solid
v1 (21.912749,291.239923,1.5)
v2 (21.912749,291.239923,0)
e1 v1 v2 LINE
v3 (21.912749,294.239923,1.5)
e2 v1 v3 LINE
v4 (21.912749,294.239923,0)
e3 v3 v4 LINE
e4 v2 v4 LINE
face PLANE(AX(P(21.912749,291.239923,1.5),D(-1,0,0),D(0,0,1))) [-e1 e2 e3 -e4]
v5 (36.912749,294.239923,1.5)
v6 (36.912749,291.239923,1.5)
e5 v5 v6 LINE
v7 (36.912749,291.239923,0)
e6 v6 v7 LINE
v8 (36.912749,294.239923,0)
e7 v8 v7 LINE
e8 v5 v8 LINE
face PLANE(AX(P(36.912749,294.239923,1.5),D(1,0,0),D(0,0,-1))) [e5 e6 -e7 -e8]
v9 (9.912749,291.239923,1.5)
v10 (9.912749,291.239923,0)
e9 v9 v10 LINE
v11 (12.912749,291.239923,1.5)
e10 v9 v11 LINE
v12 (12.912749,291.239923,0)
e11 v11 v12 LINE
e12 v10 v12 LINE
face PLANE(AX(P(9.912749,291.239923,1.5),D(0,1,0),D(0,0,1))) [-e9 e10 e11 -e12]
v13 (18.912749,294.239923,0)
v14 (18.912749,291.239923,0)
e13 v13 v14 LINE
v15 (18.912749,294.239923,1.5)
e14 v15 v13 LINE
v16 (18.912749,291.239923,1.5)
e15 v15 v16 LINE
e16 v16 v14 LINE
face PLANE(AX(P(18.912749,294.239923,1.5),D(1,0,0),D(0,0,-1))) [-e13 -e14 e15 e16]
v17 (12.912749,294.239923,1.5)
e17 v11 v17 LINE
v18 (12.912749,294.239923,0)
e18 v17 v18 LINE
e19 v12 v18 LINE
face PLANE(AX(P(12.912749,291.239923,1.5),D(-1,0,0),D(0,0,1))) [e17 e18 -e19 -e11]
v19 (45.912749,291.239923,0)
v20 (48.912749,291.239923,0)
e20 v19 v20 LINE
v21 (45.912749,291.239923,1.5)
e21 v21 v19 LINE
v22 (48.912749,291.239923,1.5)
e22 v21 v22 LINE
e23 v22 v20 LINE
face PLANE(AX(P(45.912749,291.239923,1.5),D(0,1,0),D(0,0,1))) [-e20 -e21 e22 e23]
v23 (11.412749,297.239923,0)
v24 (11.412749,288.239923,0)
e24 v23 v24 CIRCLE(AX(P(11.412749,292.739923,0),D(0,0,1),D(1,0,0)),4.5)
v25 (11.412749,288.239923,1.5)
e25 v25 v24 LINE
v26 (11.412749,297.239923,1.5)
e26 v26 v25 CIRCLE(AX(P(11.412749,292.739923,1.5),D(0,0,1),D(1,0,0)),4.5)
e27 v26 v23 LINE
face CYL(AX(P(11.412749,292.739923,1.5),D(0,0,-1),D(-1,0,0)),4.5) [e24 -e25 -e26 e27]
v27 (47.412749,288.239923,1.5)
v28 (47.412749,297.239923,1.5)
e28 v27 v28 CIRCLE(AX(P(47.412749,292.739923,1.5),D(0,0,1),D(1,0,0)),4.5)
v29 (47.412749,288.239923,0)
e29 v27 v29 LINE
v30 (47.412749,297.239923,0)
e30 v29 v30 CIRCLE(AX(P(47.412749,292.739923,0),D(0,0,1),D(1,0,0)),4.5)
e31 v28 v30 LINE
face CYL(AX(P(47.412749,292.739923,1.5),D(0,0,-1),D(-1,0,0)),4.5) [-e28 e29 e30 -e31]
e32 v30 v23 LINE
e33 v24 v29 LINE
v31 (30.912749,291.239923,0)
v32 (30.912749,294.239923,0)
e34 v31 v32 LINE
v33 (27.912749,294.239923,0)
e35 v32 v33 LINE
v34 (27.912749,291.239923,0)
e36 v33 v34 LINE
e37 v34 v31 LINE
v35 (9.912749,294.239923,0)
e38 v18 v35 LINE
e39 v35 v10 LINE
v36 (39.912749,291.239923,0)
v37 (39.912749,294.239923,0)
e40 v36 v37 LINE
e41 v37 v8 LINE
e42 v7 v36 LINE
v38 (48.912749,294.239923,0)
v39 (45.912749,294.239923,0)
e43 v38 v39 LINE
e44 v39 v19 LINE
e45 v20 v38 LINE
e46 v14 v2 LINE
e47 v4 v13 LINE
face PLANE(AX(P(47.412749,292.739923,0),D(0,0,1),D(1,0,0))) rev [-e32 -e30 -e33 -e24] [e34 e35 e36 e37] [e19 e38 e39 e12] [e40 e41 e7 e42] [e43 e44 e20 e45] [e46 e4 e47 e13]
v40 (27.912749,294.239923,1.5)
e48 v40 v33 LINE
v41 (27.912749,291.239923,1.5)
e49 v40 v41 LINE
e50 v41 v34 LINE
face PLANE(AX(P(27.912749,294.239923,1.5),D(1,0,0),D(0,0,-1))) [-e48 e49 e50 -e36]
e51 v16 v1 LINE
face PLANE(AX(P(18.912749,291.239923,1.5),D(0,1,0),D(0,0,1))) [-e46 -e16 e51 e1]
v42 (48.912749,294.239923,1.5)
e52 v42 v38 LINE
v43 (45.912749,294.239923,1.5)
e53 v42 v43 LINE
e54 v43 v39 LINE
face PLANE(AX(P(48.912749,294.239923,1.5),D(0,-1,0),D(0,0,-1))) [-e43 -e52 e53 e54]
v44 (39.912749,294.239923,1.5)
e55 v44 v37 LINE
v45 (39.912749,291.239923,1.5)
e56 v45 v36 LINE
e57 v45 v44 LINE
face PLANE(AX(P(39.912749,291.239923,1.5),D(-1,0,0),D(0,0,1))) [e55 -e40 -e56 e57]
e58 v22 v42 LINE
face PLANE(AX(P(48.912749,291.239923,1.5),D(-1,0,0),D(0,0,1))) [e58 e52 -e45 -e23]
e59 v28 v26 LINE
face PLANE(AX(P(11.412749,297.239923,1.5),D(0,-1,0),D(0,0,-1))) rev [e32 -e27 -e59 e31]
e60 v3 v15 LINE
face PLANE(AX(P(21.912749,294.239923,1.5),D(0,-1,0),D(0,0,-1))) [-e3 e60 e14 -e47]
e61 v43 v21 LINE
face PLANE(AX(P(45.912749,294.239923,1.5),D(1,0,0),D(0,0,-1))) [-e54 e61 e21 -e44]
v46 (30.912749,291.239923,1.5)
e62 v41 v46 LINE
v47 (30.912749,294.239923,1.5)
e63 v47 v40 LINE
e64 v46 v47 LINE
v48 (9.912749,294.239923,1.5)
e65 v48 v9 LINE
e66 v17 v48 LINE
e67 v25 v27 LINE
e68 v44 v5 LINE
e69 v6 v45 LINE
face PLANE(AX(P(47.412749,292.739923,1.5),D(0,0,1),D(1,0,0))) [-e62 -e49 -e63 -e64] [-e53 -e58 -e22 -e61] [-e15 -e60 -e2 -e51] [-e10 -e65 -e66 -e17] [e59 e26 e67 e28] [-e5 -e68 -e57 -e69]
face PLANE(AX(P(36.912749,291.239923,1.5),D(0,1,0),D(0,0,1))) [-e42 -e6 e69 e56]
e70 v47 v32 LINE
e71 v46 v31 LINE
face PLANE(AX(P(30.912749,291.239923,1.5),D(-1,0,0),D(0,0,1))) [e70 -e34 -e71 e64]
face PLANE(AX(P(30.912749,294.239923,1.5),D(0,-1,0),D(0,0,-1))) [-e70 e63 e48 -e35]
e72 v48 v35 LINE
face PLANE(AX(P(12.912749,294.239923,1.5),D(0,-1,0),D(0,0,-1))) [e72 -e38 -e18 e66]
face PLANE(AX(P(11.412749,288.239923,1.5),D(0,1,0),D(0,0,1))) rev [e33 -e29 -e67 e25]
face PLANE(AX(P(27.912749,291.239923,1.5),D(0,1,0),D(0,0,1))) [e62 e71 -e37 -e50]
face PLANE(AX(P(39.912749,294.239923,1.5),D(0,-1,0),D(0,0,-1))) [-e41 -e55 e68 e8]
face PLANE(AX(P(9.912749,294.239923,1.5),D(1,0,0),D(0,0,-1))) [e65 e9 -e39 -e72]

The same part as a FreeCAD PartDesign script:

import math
import FreeCAD as App
import Part
import Sketcher
from FreeCAD import Vector
Q = App.Units.Quantity

doc = App.newDocument("Part")
body = doc.addObject("PartDesign::Body", "Body")

# Sketch on XY plane
sketch1 = body.newObject("Sketcher::SketchObject", "Sketch")
sketch1.AttachmentSupport = (doc.getObject("XY_Plane"), [""])
sketch1.MapMode = "FlatFace"
sketch1.addGeometry(Part.LineSegment(Vector(47.4, 297.2, 0), Vector(11.4, 297.2, 0)), False)
sketch1.addGeometry(Part.ArcOfCircle(Part.Circle(Vector(11.4, 292.7, 0), Vector(0, 0, 1), 4.5), math.radians(90), math.radians(270)), False)
sketch1.addGeometry(Part.LineSegment(Vector(11.4, 288.2, 0), Vector(47.4, 288.2, 0)), False)
sketch1.addGeometry(Part.ArcOfCircle(Part.Circle(Vector(47.4, 292.7, 0), Vector(0, 0, 1), 4.5), math.radians(-90), math.radians(90)), False)
sketch1.addGeometry(Part.LineSegment(Vector(45.9, 291.2, 0), Vector(45.9, 294.2, 0)), False)
sketch1.addGeometry(Part.LineSegment(Vector(45.9, 294.2, 0), Vector(48.9, 294.2, 0)), False)
sketch1.addGeometry(Part.LineSegment(Vector(48.9, 294.2, 0), Vector(48.9, 291.2, 0)), False)
sketch1.addGeometry(Part.LineSegment(Vector(48.9, 291.2, 0), Vector(45.9, 291.2, 0)), False)
sketch1.addGeometry(Part.LineSegment(Vector(36.9, 291.2, 0), Vector(36.9, 294.2, 0)), False)
sketch1.addGeometry(Part.LineSegment(Vector(36.9, 294.2, 0), Vector(39.9, 294.2, 0)), False)
sketch1.addGeometry(Part.LineSegment(Vector(39.9, 294.2, 0), Vector(39.9, 291.2, 0)), False)
sketch1.addGeometry(Part.LineSegment(Vector(39.9, 291.2, 0), Vector(36.9, 291.2, 0)), False)
sketch1.addGeometry(Part.LineSegment(Vector(27.9, 291.2, 0), Vector(27.9, 294.2, 0)), False)
sketch1.addGeometry(Part.LineSegment(Vector(27.9, 294.2, 0), Vector(30.9, 294.2, 0)), False)
sketch1.addGeometry(Part.LineSegment(Vector(30.9, 294.2, 0), Vector(30.9, 291.2, 0)), False)
sketch1.addGeometry(Part.LineSegment(Vector(30.9, 291.2, 0), Vector(27.9, 291.2, 0)), False)
sketch1.addGeometry(Part.LineSegment(Vector(18.9, 291.2, 0), Vector(18.9, 294.2, 0)), False)
sketch1.addGeometry(Part.LineSegment(Vector(18.9, 294.2, 0), Vector(21.9, 294.2, 0)), False)
sketch1.addGeometry(Part.LineSegment(Vector(21.9, 294.2, 0), Vector(21.9, 291.2, 0)), False)
sketch1.addGeometry(Part.LineSegment(Vector(21.9, 291.2, 0), Vector(18.9, 291.2, 0)), False)
sketch1.addGeometry(Part.LineSegment(Vector(9.9, 291.2, 0), Vector(9.9, 294.2, 0)), False)
sketch1.addGeometry(Part.LineSegment(Vector(9.9, 294.2, 0), Vector(12.9, 294.2, 0)), False)
sketch1.addGeometry(Part.LineSegment(Vector(12.9, 294.2, 0), Vector(12.9, 291.2, 0)), False)
sketch1.addGeometry(Part.LineSegment(Vector(12.9, 291.2, 0), Vector(9.9, 291.2, 0)), False)
sketch1.addConstraint(Sketcher.Constraint("Tangent", 0, 2, 1, 1))
sketch1.addConstraint(Sketcher.Constraint("Tangent", 1, 2, 2, 1))
sketch1.addConstraint(Sketcher.Constraint("Tangent", 2, 2, 3, 1))
sketch1.addConstraint(Sketcher.Constraint("Tangent", 3, 2, 0, 1))
sketch1.addConstraint(Sketcher.Constraint("Coincident", 4, 2, 5, 1))
sketch1.addConstraint(Sketcher.Constraint("Coincident", 5, 2, 6, 1))
sketch1.addConstraint(Sketcher.Constraint("Coincident", 6, 2, 7, 1))
sketch1.addConstraint(Sketcher.Constraint("Coincident", 7, 2, 4, 1))
sketch1.addConstraint(Sketcher.Constraint("Coincident", 8, 2, 9, 1))
sketch1.addConstraint(Sketcher.Constraint("Coincident", 9, 2, 10, 1))
sketch1.addConstraint(Sketcher.Constraint("Coincident", 10, 2, 11, 1))
sketch1.addConstraint(Sketcher.Constraint("Coincident", 11, 2, 8, 1))
sketch1.addConstraint(Sketcher.Constraint("Coincident", 12, 2, 13, 1))
sketch1.addConstraint(Sketcher.Constraint("Coincident", 13, 2, 14, 1))
sketch1.addConstraint(Sketcher.Constraint("Coincident", 14, 2, 15, 1))
sketch1.addConstraint(Sketcher.Constraint("Coincident", 15, 2, 12, 1))
sketch1.addConstraint(Sketcher.Constraint("Coincident", 16, 2, 17, 1))
sketch1.addConstraint(Sketcher.Constraint("Coincident", 17, 2, 18, 1))
sketch1.addConstraint(Sketcher.Constraint("Coincident", 18, 2, 19, 1))
sketch1.addConstraint(Sketcher.Constraint("Coincident", 19, 2, 16, 1))
sketch1.addConstraint(Sketcher.Constraint("Coincident", 20, 2, 21, 1))
sketch1.addConstraint(Sketcher.Constraint("Coincident", 21, 2, 22, 1))
sketch1.addConstraint(Sketcher.Constraint("Coincident", 22, 2, 23, 1))
sketch1.addConstraint(Sketcher.Constraint("Coincident", 23, 2, 20, 1))
sketch1.addConstraint(Sketcher.Constraint("Horizontal", 0))
sketch1.addConstraint(Sketcher.Constraint("Horizontal", 2))
sketch1.addConstraint(Sketcher.Constraint("Vertical", 4))
sketch1.addConstraint(Sketcher.Constraint("Horizontal", 5))
sketch1.addConstraint(Sketcher.Constraint("Vertical", 6))
sketch1.addConstraint(Sketcher.Constraint("Horizontal", 7))
sketch1.addConstraint(Sketcher.Constraint("Vertical", 8))
sketch1.addConstraint(Sketcher.Constraint("Horizontal", 9))
sketch1.addConstraint(Sketcher.Constraint("Vertical", 10))
sketch1.addConstraint(Sketcher.Constraint("Horizontal", 11))
sketch1.addConstraint(Sketcher.Constraint("Vertical", 12))
sketch1.addConstraint(Sketcher.Constraint("Horizontal", 13))
sketch1.addConstraint(Sketcher.Constraint("Vertical", 14))
sketch1.addConstraint(Sketcher.Constraint("Horizontal", 15))
sketch1.addConstraint(Sketcher.Constraint("Vertical", 16))
sketch1.addConstraint(Sketcher.Constraint("Horizontal", 17))
sketch1.addConstraint(Sketcher.Constraint("Vertical", 18))
sketch1.addConstraint(Sketcher.Constraint("Horizontal", 19))
sketch1.addConstraint(Sketcher.Constraint("Vertical", 20))
sketch1.addConstraint(Sketcher.Constraint("Horizontal", 21))
sketch1.addConstraint(Sketcher.Constraint("Vertical", 22))
sketch1.addConstraint(Sketcher.Constraint("Horizontal", 23))
sketch1.addConstraint(Sketcher.Constraint("Horizontal", 5, 2, 8, 2))
sketch1.addConstraint(Sketcher.Constraint("Horizontal", 7, 2, 10, 2))
sketch1.addConstraint(Sketcher.Constraint("Horizontal", 9, 2, 12, 2))
sketch1.addConstraint(Sketcher.Constraint("Horizontal", 11, 2, 14, 2))
sketch1.addConstraint(Sketcher.Constraint("Horizontal", 13, 2, 16, 2))
sketch1.addConstraint(Sketcher.Constraint("Horizontal", 15, 2, 18, 2))
sketch1.addConstraint(Sketcher.Constraint("Horizontal", 17, 2, 20, 2))
sketch1.addConstraint(Sketcher.Constraint("Horizontal", 19, 2, 22, 2))
sketch1.addConstraint(Sketcher.Constraint("Equal", 7, 9))
sketch1.addConstraint(Sketcher.Constraint("Equal", 11, 13))
sketch1.addConstraint(Sketcher.Constraint("Equal", 15, 17))
sketch1.addConstraint(Sketcher.Constraint("Equal", 19, 21))
sketch1.addConstraint(Sketcher.Constraint("Equal", 23, 4))
sketch1.addConstraint(Sketcher.Constraint("Radius", 1, Q("4.5 mm")))
sketch1.addConstraint(Sketcher.Constraint("DistanceX", 0, 2, 0, 1, Q("36 mm")))
sketch1.addConstraint(Sketcher.Constraint("DistanceX", 5, 1, 5, 2, Q("3 mm")))
sketch1.addConstraint(Sketcher.Constraint("DistanceY", 4, 2, 3, 2, Q("3 mm")))
sketch1.addConstraint(Sketcher.Constraint("DistanceX", 8, 2, 4, 2, Q("9 mm")))
sketch1.addConstraint(Sketcher.Constraint("DistanceX", 12, 2, 8, 2, Q("9 mm")))
sketch1.addConstraint(Sketcher.Constraint("DistanceX", 16, 2, 12, 2, Q("9 mm")))
sketch1.addConstraint(Sketcher.Constraint("DistanceX", 20, 2, 16, 2, Q("9 mm")))
sketch1.addConstraint(Sketcher.Constraint("DistanceX", 4, 2, 3, 3, Q("1.5 mm")))
sketch1.addConstraint(Sketcher.Constraint("DistanceX", -1, 1, 1, 3, Q("11.412749 mm")))
sketch1.addConstraint(Sketcher.Constraint("DistanceY", -1, 1, 1, 3, Q("292.739923 mm")))
pad1 = body.newObject("PartDesign::Pad", "Pad")
pad1.Profile = sketch1
pad1.Length = 1.5

doc.recompute()
